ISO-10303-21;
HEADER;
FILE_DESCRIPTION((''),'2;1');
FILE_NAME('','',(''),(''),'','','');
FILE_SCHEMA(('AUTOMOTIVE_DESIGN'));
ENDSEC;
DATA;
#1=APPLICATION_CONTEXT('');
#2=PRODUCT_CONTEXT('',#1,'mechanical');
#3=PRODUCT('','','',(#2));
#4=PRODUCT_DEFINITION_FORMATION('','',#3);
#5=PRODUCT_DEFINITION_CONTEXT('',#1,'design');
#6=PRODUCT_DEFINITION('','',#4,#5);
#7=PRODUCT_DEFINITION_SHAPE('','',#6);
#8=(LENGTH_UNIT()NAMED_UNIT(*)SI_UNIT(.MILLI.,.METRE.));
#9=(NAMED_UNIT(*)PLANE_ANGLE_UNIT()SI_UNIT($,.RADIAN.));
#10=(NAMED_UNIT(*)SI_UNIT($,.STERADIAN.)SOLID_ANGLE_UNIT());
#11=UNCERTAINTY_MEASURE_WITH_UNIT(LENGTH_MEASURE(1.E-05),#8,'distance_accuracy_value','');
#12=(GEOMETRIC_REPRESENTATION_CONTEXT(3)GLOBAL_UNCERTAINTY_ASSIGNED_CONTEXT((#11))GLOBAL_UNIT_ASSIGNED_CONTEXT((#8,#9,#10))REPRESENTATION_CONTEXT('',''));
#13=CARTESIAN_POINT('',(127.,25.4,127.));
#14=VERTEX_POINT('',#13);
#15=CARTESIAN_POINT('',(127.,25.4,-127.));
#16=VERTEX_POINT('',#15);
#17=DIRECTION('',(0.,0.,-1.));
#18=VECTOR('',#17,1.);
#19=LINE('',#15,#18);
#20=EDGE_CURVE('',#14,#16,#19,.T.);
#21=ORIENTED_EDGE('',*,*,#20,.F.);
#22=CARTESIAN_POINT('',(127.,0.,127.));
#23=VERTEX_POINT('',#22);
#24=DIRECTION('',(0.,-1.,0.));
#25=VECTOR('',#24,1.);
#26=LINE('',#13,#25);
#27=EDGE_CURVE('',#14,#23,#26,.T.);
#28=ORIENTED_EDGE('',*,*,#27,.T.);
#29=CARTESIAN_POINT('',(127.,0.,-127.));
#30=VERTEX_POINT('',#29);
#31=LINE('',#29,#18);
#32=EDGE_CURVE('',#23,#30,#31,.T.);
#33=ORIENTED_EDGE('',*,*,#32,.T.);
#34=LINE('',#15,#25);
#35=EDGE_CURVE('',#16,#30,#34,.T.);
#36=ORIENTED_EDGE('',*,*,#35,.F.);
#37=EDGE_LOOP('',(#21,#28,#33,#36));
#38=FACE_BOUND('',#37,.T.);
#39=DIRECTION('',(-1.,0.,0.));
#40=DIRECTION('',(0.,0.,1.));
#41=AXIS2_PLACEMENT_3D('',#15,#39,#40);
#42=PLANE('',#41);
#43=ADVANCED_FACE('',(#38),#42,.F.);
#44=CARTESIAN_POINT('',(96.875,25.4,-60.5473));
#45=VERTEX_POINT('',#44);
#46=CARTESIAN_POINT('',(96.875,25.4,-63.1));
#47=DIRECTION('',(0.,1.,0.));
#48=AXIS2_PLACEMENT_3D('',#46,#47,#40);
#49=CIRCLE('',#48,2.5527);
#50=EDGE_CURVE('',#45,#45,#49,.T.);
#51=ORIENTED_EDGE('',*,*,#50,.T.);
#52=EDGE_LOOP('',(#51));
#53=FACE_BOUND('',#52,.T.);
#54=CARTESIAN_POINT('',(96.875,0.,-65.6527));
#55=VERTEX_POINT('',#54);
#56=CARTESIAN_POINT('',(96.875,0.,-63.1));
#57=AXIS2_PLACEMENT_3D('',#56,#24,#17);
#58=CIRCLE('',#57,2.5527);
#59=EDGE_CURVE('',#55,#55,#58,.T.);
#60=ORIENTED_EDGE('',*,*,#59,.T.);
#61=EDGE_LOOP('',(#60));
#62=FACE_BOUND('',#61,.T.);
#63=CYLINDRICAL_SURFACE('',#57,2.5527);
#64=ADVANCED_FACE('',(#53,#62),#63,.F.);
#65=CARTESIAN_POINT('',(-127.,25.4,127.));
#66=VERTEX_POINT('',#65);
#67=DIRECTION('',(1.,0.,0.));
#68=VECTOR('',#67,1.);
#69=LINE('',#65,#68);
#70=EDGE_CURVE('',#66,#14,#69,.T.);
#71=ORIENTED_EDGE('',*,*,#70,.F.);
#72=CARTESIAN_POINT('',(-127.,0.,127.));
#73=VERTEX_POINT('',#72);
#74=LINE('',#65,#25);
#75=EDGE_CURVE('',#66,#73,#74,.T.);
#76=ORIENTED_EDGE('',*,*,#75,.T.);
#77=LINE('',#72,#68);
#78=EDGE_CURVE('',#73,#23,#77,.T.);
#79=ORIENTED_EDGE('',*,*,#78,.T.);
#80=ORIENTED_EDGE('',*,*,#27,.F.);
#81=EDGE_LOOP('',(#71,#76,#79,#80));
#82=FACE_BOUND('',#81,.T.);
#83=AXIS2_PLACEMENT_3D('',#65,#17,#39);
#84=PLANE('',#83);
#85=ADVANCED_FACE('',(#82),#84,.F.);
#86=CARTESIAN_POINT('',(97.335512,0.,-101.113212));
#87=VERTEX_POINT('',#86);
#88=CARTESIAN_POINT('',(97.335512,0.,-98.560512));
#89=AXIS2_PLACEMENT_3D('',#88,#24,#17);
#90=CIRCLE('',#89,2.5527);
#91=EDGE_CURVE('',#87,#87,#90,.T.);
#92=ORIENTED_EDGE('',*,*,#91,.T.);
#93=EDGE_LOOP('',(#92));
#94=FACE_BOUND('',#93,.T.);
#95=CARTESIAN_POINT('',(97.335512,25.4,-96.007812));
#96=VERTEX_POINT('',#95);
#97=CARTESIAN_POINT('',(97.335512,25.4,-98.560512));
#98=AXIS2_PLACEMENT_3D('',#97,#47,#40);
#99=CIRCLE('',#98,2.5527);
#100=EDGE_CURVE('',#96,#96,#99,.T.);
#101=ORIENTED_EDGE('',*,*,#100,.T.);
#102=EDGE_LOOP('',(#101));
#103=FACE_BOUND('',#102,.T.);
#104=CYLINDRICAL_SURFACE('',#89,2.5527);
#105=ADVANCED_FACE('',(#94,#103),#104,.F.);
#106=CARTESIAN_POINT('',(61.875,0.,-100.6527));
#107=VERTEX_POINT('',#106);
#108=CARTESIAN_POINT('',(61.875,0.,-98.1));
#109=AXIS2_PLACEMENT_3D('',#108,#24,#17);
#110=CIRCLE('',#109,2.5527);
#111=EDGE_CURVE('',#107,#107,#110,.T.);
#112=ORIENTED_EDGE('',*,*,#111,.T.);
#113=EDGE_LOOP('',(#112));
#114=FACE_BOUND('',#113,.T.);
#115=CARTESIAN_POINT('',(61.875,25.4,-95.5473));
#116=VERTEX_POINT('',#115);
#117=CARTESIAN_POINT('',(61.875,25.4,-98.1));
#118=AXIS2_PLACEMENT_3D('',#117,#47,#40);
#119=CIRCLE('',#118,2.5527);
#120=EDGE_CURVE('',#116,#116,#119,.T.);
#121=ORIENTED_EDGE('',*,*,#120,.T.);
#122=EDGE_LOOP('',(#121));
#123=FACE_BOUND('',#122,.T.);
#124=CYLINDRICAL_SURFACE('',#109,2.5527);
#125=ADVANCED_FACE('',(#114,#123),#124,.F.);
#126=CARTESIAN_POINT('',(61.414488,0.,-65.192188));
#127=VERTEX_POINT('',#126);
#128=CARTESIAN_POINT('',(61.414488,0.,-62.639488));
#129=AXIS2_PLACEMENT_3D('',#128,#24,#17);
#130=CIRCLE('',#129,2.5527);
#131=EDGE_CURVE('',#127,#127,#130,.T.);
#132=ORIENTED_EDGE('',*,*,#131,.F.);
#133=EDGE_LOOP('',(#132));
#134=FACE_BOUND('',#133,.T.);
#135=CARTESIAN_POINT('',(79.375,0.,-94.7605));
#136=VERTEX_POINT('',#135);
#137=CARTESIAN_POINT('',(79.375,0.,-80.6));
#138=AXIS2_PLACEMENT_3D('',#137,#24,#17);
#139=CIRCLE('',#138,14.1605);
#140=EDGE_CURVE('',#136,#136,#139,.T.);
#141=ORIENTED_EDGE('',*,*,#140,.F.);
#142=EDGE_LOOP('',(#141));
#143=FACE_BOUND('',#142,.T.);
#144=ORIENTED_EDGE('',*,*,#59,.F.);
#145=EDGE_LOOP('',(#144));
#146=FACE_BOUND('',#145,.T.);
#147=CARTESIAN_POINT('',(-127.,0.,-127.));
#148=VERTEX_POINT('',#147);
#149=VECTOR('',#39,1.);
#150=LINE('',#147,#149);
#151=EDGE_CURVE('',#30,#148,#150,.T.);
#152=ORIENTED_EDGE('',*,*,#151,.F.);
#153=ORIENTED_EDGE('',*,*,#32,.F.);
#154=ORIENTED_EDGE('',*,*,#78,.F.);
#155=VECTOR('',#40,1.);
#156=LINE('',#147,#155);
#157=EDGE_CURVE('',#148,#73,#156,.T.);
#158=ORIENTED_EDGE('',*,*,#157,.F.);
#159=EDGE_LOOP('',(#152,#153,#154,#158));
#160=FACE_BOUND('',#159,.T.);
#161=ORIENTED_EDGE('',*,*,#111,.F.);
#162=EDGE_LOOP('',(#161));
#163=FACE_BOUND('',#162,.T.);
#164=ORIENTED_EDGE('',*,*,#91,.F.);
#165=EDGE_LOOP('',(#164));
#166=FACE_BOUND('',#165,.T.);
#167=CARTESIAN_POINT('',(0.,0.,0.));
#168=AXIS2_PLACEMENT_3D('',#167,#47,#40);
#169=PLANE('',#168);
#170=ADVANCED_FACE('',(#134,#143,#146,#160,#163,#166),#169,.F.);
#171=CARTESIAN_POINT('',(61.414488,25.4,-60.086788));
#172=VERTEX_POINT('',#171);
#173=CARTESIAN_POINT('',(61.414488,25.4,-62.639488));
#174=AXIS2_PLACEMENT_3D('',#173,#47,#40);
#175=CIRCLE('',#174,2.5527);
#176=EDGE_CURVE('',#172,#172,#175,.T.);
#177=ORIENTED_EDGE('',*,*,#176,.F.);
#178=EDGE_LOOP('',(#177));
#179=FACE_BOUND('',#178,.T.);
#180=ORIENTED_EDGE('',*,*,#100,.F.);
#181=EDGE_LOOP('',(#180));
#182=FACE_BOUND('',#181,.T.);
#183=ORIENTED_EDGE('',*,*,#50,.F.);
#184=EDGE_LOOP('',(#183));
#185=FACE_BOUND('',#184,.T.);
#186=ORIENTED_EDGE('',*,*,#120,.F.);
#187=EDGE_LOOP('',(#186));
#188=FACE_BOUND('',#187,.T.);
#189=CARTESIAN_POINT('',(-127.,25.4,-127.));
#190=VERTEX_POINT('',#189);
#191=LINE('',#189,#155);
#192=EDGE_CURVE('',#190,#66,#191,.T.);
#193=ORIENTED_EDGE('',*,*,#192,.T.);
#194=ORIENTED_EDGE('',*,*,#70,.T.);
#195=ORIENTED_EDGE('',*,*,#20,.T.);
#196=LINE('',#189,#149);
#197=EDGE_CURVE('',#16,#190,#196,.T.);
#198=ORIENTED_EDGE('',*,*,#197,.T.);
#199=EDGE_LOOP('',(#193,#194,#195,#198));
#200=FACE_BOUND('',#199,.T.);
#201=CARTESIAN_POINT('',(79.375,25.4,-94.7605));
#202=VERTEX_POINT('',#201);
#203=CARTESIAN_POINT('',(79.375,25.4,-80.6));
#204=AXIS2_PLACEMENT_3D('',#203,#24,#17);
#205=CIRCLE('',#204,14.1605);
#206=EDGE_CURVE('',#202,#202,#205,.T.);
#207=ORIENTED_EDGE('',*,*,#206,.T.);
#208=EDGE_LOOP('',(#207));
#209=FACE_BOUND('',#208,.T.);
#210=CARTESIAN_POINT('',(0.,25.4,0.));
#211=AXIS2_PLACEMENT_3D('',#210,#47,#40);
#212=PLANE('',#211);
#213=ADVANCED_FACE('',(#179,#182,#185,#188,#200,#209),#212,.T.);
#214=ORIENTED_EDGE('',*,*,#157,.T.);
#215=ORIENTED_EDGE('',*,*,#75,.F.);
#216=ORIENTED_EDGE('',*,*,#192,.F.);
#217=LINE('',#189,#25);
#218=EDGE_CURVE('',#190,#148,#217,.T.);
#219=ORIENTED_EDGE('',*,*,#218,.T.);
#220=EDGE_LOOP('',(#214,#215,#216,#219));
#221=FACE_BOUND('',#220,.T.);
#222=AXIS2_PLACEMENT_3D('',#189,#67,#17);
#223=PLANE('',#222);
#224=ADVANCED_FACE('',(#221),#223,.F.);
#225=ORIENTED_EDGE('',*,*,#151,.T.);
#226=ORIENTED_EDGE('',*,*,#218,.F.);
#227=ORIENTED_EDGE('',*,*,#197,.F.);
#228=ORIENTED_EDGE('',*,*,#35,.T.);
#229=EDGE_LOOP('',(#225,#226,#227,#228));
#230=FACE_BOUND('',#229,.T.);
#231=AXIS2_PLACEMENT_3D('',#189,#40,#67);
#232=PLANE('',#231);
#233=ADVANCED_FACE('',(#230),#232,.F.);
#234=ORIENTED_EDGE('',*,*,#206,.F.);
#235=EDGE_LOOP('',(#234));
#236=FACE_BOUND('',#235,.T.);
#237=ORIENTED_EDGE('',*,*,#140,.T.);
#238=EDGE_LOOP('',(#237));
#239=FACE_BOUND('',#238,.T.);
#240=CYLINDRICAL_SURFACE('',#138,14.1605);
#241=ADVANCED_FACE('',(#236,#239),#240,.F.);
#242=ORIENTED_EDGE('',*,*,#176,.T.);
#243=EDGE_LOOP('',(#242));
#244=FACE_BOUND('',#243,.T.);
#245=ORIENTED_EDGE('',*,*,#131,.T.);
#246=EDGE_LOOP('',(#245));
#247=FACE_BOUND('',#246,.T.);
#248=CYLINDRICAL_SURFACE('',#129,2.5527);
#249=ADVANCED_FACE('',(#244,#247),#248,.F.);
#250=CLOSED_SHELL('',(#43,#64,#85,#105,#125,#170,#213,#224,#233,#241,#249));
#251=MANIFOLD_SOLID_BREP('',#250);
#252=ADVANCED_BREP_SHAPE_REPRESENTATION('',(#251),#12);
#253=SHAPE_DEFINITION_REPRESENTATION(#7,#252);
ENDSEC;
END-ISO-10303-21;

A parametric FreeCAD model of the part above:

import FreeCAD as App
import Part
import Sketcher
Q = App.Units.Quantity

doc = App.newDocument("Part")
params = doc.addObject("Spreadsheet::Sheet", "Params")
for row, (alias, value) in enumerate([
    ("sketch1_width", "10 in"),
    ("pad1_length", "1 in"),
    ("sketch2_diameter", "0.201 in"),
    ("hole_diameter", "0.201 in"),
    ("sketch3_diameter", "1.115 in"),
    ("hole2_diameter", "1.115 in"),
], start=1):
    params.set(f"A{row}", alias)
    params.set(f"B{row}", "=" + value)
    params.setAlias(f"B{row}", alias)

body = doc.addObject("PartDesign::Body", "Body")

# Sketch on XZ plane
sketch1 = body.newObject("Sketcher::SketchObject", "Sketch")
sketch1.AttachmentSupport = (doc.getObject("XZ_Plane"), [""])
sketch1.MapMode = "FlatFace"
sketch1.addGeometry([
    Part.LineSegment(App.Vector(-127, -127, 0), App.Vector(-127, 127, 0)),
    Part.LineSegment(App.Vector(-127, 127, 0), App.Vector(127, 127, 0)),
    Part.LineSegment(App.Vector(127, 127, 0), App.Vector(127, -127, 0)),
    Part.LineSegment(App.Vector(127, -127, 0), App.Vector(-127, -127, 0)),
], False)
sketch1.addConstraint([
    Sketcher.Constraint("Coincident", 0, 2, 1, 1),
    Sketcher.Constraint("Coincident", 1, 2, 2, 1),
    Sketcher.Constraint("Coincident", 2, 2, 3, 1),
    Sketcher.Constraint("Coincident", 3, 2, 0, 1),
    Sketcher.Constraint("Vertical", 0),
    Sketcher.Constraint("Horizontal", 1),
    Sketcher.Constraint("Vertical", 2),
    Sketcher.Constraint("Horizontal", 3),
    Sketcher.Constraint("Symmetric", 0, 2, 2, 2, -1, 1),
    Sketcher.Constraint("Equal", 3, 0),
    Sketcher.Constraint("DistanceX", 1, 1, 1, 2, Q("10 in")),
])
sketch1.setExpression("Constraints[10]", "Params.sketch1_width")
pad1 = body.newObject("PartDesign::Pad", "Pad")
pad1.Profile = sketch1
pad1.setExpression("Length", "Params.pad1_length")
pad1.Reversed = True

# Sketch on XZ plane
sketch2 = body.newObject("Sketcher::SketchObject", "Sketch001")
sketch2.AttachmentSupport = (doc.getObject("XZ_Plane"), [""])
sketch2.MapMode = "FlatFace"
sketch2.addGeometry([
    Part.Circle(App.Vector(61.414488, -62.639488, 0), App.Vector(0, 0, 1), 2.5527),
    Part.Circle(App.Vector(97.335512, -98.560512, 0), App.Vector(0, 0, 1), 2.5527),
    Part.Circle(App.Vector(61.875, -98.1, 0), App.Vector(0, 0, 1), 2.5527),
    Part.Circle(App.Vector(96.875, -63.1, 0), App.Vector(0, 0, 1), 2.5527),
], False)
sketch2.addConstraint([
    Sketcher.Constraint("Equal", 0, 1),
    Sketcher.Constraint("Equal", 1, 2),
    Sketcher.Constraint("Equal", 2, 3),
    Sketcher.Constraint("Diameter", 0, Q("0.201 in")),
    Sketcher.Constraint("DistanceX", -1, 1, 2, 3, 61.875),
    Sketcher.Constraint("DistanceY", 2, 3, -1, 1, 98.1),
    Sketcher.Constraint("DistanceX", -1, 1, 3, 3, 96.875),
    Sketcher.Constraint("DistanceY", 3, 3, -1, 1, 63.1),
    Sketcher.Constraint("DistanceX", -1, 1, 0, 3, 61.414488),
    Sketcher.Constraint("DistanceY", 0, 3, -1, 1, 62.639488),
    Sketcher.Constraint("DistanceX", -1, 1, 1, 3, 97.335512),
    Sketcher.Constraint("DistanceY", 1, 3, -1, 1, 98.560512),
])
sketch2.setExpression("Constraints[3]", "Params.sketch2_diameter")
doc.recompute()
hole = body.newObject("PartDesign::Hole", "Hole")
hole.Profile = sketch2
hole.ThreadType = "None"
hole.setExpression("Diameter", "Params.hole_diameter")
hole.DepthType = "ThroughAll"

# Sketch on XZ plane
sketch3 = body.newObject("Sketcher::SketchObject", "Sketch002")
sketch3.AttachmentSupport = (doc.getObject("XZ_Plane"), [""])
sketch3.MapMode = "FlatFace"
sketch3.addGeometry(Part.Circle(App.Vector(79.375, -80.6, 0), App.Vector(0, 0, 1), 14.1605), False)
sketch3.addConstraint([
    Sketcher.Constraint("Diameter", 0, Q("1.115 in")),
    Sketcher.Constraint("DistanceX", -1, 1, 0, 3, Q("3.125 in")),
    Sketcher.Constraint("DistanceY", 0, 3, -1, 1, 80.6),
])
sketch3.setExpression("Constraints[0]", "Params.sketch3_diameter")
doc.recompute()
hole2 = body.newObject("PartDesign::Hole", "Hole001")
hole2.Profile = sketch3
hole2.ThreadType = "None"
hole2.setExpression("Diameter", "Params.hole2_diameter")
hole2.DepthType = "ThroughAll"

doc.recompute()
